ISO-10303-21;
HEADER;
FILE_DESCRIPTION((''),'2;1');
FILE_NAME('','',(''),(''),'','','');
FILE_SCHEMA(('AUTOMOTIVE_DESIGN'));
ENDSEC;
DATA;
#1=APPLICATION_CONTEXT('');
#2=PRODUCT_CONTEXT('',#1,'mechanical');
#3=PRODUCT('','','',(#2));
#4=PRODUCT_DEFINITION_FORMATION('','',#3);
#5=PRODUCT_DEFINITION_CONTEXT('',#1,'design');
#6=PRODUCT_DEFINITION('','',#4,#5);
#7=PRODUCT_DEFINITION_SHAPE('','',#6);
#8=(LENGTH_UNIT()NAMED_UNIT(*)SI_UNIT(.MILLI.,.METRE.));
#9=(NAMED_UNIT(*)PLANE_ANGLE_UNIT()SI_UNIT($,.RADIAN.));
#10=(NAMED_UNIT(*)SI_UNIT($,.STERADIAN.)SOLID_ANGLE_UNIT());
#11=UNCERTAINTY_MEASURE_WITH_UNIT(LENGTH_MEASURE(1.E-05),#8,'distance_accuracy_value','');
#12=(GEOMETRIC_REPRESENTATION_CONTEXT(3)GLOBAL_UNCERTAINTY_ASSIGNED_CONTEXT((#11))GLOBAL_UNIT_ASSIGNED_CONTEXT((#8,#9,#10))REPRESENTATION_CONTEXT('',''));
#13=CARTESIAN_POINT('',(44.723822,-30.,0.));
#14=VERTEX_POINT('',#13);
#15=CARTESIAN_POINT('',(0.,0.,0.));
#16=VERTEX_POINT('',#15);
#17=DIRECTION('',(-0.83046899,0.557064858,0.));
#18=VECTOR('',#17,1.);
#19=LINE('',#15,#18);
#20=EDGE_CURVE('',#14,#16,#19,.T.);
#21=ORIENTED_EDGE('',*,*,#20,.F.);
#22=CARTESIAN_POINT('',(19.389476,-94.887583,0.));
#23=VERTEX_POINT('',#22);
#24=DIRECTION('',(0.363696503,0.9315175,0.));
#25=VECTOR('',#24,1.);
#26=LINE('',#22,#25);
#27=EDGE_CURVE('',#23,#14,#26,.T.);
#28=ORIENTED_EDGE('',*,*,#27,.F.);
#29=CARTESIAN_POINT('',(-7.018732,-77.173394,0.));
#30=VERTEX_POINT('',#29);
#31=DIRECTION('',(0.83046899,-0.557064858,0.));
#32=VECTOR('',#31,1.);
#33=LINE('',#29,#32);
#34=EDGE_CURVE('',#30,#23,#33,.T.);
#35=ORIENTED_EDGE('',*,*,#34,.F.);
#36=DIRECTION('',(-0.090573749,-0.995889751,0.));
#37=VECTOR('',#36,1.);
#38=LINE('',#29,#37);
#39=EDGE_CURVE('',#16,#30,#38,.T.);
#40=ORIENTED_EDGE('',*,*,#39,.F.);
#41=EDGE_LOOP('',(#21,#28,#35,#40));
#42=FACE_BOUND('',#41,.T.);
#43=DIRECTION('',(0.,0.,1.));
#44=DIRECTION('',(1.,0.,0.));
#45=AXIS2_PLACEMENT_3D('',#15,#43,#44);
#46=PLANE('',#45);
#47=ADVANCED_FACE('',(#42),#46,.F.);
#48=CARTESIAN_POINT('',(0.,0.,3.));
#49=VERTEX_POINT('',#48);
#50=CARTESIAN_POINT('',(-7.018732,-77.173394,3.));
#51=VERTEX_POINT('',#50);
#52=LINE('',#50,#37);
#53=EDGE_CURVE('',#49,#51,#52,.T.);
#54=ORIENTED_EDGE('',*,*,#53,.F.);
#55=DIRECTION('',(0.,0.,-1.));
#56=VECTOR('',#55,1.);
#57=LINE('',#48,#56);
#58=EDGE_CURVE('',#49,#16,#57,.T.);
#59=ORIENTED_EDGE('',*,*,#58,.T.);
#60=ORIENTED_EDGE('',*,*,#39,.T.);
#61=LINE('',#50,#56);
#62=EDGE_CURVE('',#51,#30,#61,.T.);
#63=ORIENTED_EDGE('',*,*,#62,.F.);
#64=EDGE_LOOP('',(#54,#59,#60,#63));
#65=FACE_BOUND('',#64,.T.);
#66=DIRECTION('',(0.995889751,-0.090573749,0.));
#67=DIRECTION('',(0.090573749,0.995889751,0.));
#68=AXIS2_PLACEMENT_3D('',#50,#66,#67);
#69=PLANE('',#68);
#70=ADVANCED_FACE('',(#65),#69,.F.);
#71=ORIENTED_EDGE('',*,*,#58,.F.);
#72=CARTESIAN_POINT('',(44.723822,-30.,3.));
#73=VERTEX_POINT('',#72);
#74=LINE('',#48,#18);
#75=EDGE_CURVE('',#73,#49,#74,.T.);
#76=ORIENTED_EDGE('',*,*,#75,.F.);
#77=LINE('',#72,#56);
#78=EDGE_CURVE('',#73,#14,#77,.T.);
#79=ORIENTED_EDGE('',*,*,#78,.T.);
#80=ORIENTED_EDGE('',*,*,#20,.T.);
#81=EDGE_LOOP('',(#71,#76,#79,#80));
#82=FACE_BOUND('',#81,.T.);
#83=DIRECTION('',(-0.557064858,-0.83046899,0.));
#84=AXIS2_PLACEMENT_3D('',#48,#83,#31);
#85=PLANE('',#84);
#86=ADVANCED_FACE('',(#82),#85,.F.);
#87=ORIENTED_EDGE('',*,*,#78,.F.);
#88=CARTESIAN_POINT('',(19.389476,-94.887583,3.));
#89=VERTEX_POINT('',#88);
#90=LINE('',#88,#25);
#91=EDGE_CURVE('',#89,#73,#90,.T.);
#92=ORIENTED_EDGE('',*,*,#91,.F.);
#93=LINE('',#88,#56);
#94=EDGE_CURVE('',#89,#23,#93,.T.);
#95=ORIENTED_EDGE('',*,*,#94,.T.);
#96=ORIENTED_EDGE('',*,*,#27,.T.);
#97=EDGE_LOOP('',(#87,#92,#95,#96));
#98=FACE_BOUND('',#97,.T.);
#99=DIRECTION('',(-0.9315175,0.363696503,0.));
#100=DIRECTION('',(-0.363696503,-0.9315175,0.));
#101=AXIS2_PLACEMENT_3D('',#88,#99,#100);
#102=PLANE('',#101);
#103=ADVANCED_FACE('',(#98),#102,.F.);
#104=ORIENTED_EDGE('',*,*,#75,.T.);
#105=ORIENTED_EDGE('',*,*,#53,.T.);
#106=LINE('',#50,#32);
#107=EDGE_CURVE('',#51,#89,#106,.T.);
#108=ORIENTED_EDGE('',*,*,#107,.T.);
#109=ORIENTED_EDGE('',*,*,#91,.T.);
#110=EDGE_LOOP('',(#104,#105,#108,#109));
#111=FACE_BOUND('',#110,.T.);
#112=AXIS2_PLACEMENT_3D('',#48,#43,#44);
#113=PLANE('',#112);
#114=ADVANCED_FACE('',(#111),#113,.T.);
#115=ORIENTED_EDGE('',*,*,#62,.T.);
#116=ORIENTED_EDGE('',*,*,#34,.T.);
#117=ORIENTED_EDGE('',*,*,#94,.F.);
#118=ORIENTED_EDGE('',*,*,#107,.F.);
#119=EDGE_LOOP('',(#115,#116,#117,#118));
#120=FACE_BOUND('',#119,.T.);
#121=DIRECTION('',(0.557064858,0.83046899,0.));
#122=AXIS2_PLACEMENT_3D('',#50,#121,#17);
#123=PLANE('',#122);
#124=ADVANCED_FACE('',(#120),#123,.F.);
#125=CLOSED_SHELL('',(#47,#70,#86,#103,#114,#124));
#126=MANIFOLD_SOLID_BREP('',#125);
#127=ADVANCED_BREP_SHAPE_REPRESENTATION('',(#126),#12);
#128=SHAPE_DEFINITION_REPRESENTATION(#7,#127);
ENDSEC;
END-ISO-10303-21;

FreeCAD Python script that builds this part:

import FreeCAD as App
import Part
import Sketcher

V = App.Vector

doc = App.newDocument("Part")
params = doc.addObject("Spreadsheet::Sheet", "Params")
for row, (alias, value) in enumerate([
    ("pad1_length", "3 mm"),
], start=1):
    params.set(f"A{row}", alias)
    params.set(f"B{row}", "=" + value)
    params.setAlias(f"B{row}", alias)

body = doc.addObject("PartDesign::Body", "Body")

sketch1 = doc.addObject("Sketcher::SketchObject", "Sketch")
body.addObject(sketch1)
sketch1.AttachmentSupport = (doc.XY_Plane, [""])
sketch1.MapMode = "FlatFace"
sketch1.addGeometry([
    Part.LineSegment(V(0, 0, 0), V(-7, -77, 0)),
    Part.LineSegment(V(-7, -77, 0), V(19, -95, 0)),
    Part.LineSegment(V(19, -95, 0), V(45, -30, 0)),
    Part.LineSegment(V(45, -30, 0), V(0, 0, 0)),
], False)
sketch1.addConstraint([
    Sketcher.Constraint("Coincident", 0, 2, 1, 1),
    Sketcher.Constraint("Coincident", 1, 2, 2, 1),
    Sketcher.Constraint("Coincident", 2, 2, 3, 1),
    Sketcher.Constraint("Coincident", 3, 2, 0, 1),
    Sketcher.Constraint("Coincident", 3, 2, -1, 1),
    Sketcher.Constraint("Parallel", 1, 3),
    Sketcher.Constraint("DistanceY", 2, 2, -1, 1, 30.0),
    Sketcher.Constraint("Distance", 1, 31.79915),
    Sketcher.Constraint("DistanceX", 0, 2, 1, 2, 26.408208),
    Sketcher.Constraint("Distance", 0, 77.491905),
    Sketcher.Constraint("Distance", 2, 69.657933),
])
pad1 = doc.addObject("PartDesign::Pad", "Pad")
body.addObject(pad1)
pad1.Profile = sketch1
pad1.setExpression("Length", "Params.pad1_length")

doc.recompute()
